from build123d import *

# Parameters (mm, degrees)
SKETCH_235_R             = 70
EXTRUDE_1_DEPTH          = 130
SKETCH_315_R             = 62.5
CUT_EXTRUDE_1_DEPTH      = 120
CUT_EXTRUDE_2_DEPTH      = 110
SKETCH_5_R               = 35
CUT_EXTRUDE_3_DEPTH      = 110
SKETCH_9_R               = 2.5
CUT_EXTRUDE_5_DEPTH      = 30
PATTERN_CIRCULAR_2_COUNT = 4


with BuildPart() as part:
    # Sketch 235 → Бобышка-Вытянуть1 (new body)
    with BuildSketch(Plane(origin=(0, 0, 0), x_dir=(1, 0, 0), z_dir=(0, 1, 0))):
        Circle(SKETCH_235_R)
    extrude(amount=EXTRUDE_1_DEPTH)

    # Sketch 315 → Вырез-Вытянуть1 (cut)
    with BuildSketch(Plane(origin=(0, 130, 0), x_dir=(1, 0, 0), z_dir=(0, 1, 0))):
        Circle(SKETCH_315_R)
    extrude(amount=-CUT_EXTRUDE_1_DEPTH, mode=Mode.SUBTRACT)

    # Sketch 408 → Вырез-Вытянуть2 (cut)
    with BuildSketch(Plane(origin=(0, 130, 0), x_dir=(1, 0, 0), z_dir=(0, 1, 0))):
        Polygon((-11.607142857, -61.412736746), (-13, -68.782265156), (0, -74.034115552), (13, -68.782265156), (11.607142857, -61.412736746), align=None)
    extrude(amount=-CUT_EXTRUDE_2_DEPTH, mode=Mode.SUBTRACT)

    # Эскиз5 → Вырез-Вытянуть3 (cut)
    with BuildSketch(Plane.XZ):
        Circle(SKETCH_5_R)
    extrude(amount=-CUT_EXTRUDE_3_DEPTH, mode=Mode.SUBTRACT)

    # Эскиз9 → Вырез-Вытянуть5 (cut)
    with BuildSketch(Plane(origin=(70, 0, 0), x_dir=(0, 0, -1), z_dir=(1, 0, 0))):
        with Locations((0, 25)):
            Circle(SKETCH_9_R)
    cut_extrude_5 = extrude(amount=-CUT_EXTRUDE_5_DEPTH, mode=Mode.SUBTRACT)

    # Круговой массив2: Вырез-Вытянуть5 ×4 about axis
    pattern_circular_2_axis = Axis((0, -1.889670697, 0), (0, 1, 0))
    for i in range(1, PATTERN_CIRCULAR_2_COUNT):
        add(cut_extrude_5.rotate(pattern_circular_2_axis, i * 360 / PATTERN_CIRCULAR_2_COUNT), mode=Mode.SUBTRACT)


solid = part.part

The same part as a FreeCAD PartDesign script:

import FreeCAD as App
import Part
import Sketcher

V = App.Vector
Q = App.Units.Quantity


def add_polygon(sketch, points):
    """Adds a closed chain of lines whose ends are joined by coincident constraints."""
    first, n = sketch.GeometryCount, len(points)
    for a, b in zip(points, points[1:] + points[:1]):
        sketch.addGeometry(Part.LineSegment(App.Vector(*a, 0), App.Vector(*b, 0)), False)
    for i in range(n):
        sketch.addConstraint(Sketcher.Constraint("Coincident", first + i, 2, first + (i + 1) % n, 1))

doc = App.newDocument("Part")
body = doc.addObject("PartDesign::Body", "Body")

# Sketch on XZ plane
sketch1 = body.newObject("Sketcher::SketchObject", "Sketch")
sketch1.AttachmentSupport = (doc.getObject("XZ_Plane"), [""])
sketch1.MapMode = "FlatFace"
sketch1.addGeometry(Part.Circle(V(0, 0, 0), V(0, 0, 1), 70), False)
sketch1.addConstraint([
    Sketcher.Constraint("Coincident", 0, 3, -1, 1),
    Sketcher.Constraint("Diameter", 0, Q("140 mm")),
])
pad1 = body.newObject("PartDesign::Pad", "Pad")
pad1.Profile = sketch1
pad1.Length = 130
pad1.Reversed = True

# Sketch on XZ plane
sketch2 = body.newObject("Sketcher::SketchObject", "Sketch001")
sketch2.AttachmentSupport = (doc.getObject("XZ_Plane"), [""])
sketch2.MapMode = "FlatFace"
sketch2.AttachmentOffset = App.Placement(V(0, 0, -130), App.Rotation())
sketch2.addGeometry(Part.Circle(V(0, 0, 0), V(0, 0, 1), 62), False)
sketch2.addConstraint([
    Sketcher.Constraint("Coincident", 0, 3, -1, 1),
    Sketcher.Constraint("Diameter", 0, Q("125 mm")),
])
pocket1 = body.newObject("PartDesign::Pocket", "Pocket")
pocket1.Profile = sketch2
pocket1.Length = 120
pocket1.Reversed = True

# Sketch on XZ plane
sketch3 = body.newObject("Sketcher::SketchObject", "Sketch002")
sketch3.AttachmentSupport = (doc.getObject("XZ_Plane"), [""])
sketch3.MapMode = "FlatFace"
sketch3.AttachmentOffset = App.Placement(V(0, 0, -130), App.Rotation())
add_polygon(sketch3, [(-12, 61), (-13, 69), (0, 74), (13, 69), (12, 61)])  # lines 0-4
sketch3.addConstraint([
    Sketcher.Constraint("Horizontal", 4),
    Sketcher.Constraint("Symmetric", 0, 2, 2, 2, -2),
    Sketcher.Constraint("PointOnObject", 1, 2, -2),
    Sketcher.Constraint("Equal", 0, 3),
    Sketcher.Constraint("DistanceX", 0, 2, -1, 1, Q("13 mm")),
    Sketcher.Constraint("Distance", 0, Q("7.5 mm")),
    Sketcher.Constraint("DistanceX", 4, 2, 4, 1, Q("23.214286 mm")),
    Sketcher.Constraint("DistanceY", 0, 2, 1, 2, Q("5.25185 mm")),
    Sketcher.Constraint("DistanceY", -1, 1, 0, 2, Q("68.782265 mm")),
])
pocket2 = body.newObject("PartDesign::Pocket", "Pocket001")
pocket2.Profile = sketch3
pocket2.Length = 110
pocket2.Reversed = True

# Sketch on XZ plane
sketch4 = body.newObject("Sketcher::SketchObject", "Sketch003")
sketch4.AttachmentSupport = (doc.getObject("XZ_Plane"), [""])
sketch4.MapMode = "FlatFace"
sketch4.addGeometry(Part.Circle(V(0, 0, 0), V(0, 0, 1), 35), False)
sketch4.addConstraint([
    Sketcher.Constraint("Coincident", 0, 3, -1, 1),
    Sketcher.Constraint("Diameter", 0, Q("70 mm")),
])
pocket3 = body.newObject("PartDesign::Pocket", "Pocket002")
pocket3.Profile = sketch4
pocket3.Length = 110

# Sketch on YZ plane
sketch5 = body.newObject("Sketcher::SketchObject", "Sketch004")
sketch5.AttachmentSupport = (doc.getObject("YZ_Plane"), [""])
sketch5.MapMode = "FlatFace"
sketch5.AttachmentOffset = App.Placement(V(0, 0, 70), App.Rotation())
sketch5.addGeometry(Part.Circle(V(25, 0, 0), V(0, 0, 1), 2.5), False)
sketch5.addConstraint([
    Sketcher.Constraint("PointOnObject", 0, 3, -1),
    Sketcher.Constraint("Diameter", 0, Q("5 mm")),
    Sketcher.Constraint("DistanceX", -1, 1, 0, 3, Q("25 mm")),
])
pocket4 = body.newObject("PartDesign::Pocket", "Pocket003")
pocket4.Profile = sketch5
pocket4.Length = 30
doc.recompute()

polarpattern = body.newObject("PartDesign::PolarPattern", "PolarPattern")
polarpattern.Originals = [pocket4]
polarpattern.Axis = (doc.getObject("Y_Axis"), [""])
polarpattern.Angle = 360
polarpattern.Occurrences = 4
body.Tip = polarpattern

doc.recompute()
